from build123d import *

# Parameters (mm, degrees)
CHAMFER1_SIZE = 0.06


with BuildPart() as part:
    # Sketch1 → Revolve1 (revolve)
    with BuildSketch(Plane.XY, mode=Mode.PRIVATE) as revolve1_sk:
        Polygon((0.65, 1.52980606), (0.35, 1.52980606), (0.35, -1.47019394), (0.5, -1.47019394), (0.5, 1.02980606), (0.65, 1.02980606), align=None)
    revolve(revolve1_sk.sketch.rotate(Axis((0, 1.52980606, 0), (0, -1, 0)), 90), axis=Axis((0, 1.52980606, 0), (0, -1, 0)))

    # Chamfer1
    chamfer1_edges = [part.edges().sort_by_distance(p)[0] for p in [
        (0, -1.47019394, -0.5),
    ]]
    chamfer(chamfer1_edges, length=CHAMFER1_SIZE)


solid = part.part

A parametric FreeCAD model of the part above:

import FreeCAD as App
import Part
import Sketcher

V = App.Vector
Q = App.Units.Quantity


def edges_at(feature, points):
    """Names of the edges that pass closest to the given points."""
    edges = feature.Shape.Edges
    near = lambda p: min(range(len(edges)), key=lambda i: edges[i].distToShape(Part.Vertex(*p))[0])
    return sorted({f"Edge{near(p) + 1}" for p in points})


def add_polygon(sketch, points):
    """Adds a closed chain of lines whose ends are joined by coincident constraints."""
    first, n = sketch.GeometryCount, len(points)
    for a, b in zip(points, points[1:] + points[:1]):
        sketch.addGeometry(Part.LineSegment(App.Vector(*a, 0), App.Vector(*b, 0)), False)
    for i in range(n):
        sketch.addConstraint(Sketcher.Constraint("Coincident", first + i, 2, first + (i + 1) % n, 1))

doc = App.newDocument("Part")
body = doc.addObject("PartDesign::Body", "Body")

sketch1 = body.newObject("Sketcher::SketchObject", "Sketch")
sketch1.AttachmentSupport = (doc.getObject("XY_Plane"), [""])
sketch1.MapMode = "FlatFace"
add_polygon(sketch1, [(0.65, 1.53), (0.35, 1.53), (0.35, -1.47), (0.5, -1.47), (0.5, 1.03), (0.65, 1.03)])
sketch1.addConstraint([
    Sketcher.Constraint("Horizontal", 0),
    Sketcher.Constraint("Vertical", 1),
    Sketcher.Constraint("Horizontal", 2),
    Sketcher.Constraint("Vertical", 3),
    Sketcher.Constraint("Horizontal", 4),
    Sketcher.Constraint("Vertical", 5),
    Sketcher.Constraint("Equal", 2, 4),
    Sketcher.Constraint("DistanceY", 1, 2, 1, 1, Q("3 mm")),
    Sketcher.Constraint("DistanceX", 0, 2, 0, 1, Q("0.3 mm")),
    Sketcher.Constraint("DistanceY", 3, 1, 3, 2, Q("2.5 mm")),
    Sketcher.Constraint("DistanceX", -1, 1, 2, 2, Q("0.5 mm")),
    Sketcher.Constraint("DistanceY", -1, 1, 0, 2, Q("1.529806 mm")),
])
revolution = body.newObject("PartDesign::Revolution", "Revolution")
revolution.Profile = sketch1
revolution.ReferenceAxis = (sketch1, ["V_Axis"])
revolution.Angle = 360
doc.recompute()

chamfer = body.newObject("PartDesign::Chamfer", "Chamfer")
chamfer.Base = (revolution, edges_at(revolution, [(0, -1.47, -0.5)]))
chamfer.Size = 0.06

doc.recompute()
